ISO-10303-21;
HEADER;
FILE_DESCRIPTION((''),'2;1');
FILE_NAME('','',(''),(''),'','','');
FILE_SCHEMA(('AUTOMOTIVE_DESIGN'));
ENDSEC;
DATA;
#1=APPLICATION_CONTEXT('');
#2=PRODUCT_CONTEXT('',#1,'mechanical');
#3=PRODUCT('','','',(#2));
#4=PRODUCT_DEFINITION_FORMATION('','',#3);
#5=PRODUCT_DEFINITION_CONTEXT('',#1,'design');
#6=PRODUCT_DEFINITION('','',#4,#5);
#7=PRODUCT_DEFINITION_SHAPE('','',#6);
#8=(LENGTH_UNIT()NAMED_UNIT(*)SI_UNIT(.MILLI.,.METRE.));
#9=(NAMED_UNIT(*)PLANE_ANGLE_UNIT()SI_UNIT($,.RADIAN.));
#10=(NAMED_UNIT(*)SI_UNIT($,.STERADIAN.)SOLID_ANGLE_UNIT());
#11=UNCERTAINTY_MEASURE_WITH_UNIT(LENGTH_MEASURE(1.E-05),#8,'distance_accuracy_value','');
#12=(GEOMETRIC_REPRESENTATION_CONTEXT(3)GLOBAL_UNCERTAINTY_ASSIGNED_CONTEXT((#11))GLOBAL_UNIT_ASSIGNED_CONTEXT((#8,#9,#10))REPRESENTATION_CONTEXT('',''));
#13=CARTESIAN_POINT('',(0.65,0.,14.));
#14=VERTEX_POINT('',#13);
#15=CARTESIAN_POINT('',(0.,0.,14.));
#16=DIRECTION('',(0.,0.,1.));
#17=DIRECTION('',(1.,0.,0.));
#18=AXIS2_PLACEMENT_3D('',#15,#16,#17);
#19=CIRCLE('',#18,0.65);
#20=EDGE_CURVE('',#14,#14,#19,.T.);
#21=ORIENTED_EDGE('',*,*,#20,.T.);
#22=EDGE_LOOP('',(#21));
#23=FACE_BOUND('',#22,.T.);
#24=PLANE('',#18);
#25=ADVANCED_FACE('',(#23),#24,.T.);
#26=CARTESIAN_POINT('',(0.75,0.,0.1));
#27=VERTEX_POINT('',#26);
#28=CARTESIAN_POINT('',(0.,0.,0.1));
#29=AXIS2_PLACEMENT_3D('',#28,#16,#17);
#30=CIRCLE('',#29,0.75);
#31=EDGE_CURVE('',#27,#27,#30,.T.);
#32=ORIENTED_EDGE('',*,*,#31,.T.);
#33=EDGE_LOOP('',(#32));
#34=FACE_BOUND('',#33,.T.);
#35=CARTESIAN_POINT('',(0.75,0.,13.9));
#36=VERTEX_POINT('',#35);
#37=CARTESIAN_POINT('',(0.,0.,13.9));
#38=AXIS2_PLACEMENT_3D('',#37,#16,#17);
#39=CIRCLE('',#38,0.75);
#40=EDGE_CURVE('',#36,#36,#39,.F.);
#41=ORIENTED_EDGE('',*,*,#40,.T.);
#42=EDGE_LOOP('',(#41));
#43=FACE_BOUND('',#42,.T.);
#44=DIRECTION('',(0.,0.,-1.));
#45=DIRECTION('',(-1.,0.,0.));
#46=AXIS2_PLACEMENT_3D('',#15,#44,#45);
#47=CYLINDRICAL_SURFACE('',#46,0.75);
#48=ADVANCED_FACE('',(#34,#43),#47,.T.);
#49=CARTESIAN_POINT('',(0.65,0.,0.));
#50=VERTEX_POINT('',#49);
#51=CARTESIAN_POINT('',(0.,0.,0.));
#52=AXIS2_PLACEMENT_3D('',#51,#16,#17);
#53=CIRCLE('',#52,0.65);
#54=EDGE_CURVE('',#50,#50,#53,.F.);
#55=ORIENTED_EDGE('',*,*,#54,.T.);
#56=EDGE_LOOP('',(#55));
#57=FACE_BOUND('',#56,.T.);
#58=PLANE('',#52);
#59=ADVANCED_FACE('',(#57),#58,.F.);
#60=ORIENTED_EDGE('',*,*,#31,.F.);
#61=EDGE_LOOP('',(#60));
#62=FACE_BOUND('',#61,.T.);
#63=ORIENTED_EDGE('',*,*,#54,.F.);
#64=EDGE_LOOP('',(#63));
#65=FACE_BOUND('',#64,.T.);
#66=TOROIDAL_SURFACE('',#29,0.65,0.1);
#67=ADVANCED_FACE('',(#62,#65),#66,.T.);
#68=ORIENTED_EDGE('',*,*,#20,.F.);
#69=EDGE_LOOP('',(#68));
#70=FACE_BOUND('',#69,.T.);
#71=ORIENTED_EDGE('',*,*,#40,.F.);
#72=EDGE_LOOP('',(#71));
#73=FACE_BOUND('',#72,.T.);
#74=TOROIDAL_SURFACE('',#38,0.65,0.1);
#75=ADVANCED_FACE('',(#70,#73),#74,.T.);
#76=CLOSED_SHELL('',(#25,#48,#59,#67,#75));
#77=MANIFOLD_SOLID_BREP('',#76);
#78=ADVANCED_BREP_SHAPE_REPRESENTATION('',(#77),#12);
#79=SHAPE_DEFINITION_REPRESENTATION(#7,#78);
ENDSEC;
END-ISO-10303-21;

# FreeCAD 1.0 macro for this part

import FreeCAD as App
import Part
import Sketcher
from FreeCAD import Vector


def edges_at(feature, points):
    """Names of the edges that pass closest to the given points."""
    edges = feature.Shape.Edges
    near = lambda p: min(range(len(edges)), key=lambda i: edges[i].distToShape(Part.Vertex(*p))[0])
    return sorted({f"Edge{near(p) + 1}" for p in points})

doc = App.newDocument("Part")
body = doc.addObject("PartDesign::Body", "Body")

# Sketch on XY plane
sketch1 = body.newObject("Sketcher::SketchObject", "Sketch")
sketch1.AttachmentSupport = (doc.getObject("XY_Plane"), [""])
sketch1.MapMode = "FlatFace"
sketch1.addGeometry(Part.Circle(Vector(0, 0, 0), Vector(0, 0, 1), 0.75), False)
sketch1.addConstraint([
    Sketcher.Constraint("Coincident", 0, 3, -1, 1),
    Sketcher.Constraint("Diameter", 0, 1.5),
])
pad1 = body.newObject("PartDesign::Pad", "Pad")
pad1.Profile = sketch1
pad1.Length = 14
doc.recompute()

fillet = body.newObject("PartDesign::Fillet", "Fillet")
fillet.Base = (pad1, edges_at(pad1, [(-0.75, 0, 0), (-0.75, 0, 14)]))
fillet.Radius = 0.1

doc.recompute()
